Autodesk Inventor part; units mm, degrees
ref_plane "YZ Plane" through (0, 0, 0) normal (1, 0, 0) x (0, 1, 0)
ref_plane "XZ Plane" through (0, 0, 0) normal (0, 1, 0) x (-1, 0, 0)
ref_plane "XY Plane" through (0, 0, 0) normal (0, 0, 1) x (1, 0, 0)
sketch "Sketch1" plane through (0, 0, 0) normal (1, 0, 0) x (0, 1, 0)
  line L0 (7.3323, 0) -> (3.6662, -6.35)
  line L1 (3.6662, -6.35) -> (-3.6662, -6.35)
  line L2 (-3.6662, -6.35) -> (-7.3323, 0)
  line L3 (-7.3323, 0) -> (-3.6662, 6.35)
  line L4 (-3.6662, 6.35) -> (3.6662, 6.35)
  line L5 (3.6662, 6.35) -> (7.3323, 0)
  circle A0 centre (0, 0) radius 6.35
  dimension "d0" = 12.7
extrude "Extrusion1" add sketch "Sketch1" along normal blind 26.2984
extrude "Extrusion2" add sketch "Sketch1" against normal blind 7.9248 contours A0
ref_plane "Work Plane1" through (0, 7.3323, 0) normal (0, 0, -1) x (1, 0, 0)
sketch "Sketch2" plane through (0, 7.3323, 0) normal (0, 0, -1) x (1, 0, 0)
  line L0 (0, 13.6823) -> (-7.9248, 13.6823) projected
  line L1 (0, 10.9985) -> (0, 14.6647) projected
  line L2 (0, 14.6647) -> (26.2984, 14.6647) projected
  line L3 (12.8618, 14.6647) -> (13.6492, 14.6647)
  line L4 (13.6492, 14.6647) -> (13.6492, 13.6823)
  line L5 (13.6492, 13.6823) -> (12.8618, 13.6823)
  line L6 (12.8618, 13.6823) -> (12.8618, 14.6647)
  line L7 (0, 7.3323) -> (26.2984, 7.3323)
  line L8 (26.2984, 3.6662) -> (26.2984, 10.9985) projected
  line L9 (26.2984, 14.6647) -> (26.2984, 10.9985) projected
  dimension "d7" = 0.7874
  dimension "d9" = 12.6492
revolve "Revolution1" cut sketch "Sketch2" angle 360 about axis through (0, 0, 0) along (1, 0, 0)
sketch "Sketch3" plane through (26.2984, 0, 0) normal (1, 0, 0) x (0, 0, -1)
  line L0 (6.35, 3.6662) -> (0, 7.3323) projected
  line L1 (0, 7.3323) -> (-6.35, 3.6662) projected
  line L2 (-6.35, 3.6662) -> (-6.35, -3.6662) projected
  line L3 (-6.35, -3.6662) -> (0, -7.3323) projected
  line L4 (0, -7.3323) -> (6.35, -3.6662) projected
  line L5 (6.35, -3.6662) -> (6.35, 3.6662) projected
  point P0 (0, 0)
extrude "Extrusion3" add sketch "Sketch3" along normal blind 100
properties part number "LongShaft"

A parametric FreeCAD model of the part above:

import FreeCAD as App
import Part
import Sketcher
Q = App.Units.Quantity


def add_polygon(sketch, points):
    """Adds a closed chain of lines whose ends are joined by coincident constraints."""
    first, n = sketch.GeometryCount, len(points)
    for a, b in zip(points, points[1:] + points[:1]):
        sketch.addGeometry(Part.LineSegment(App.Vector(*a, 0), App.Vector(*b, 0)), False)
    for i in range(n):
        sketch.addConstraint(Sketcher.Constraint("Coincident", first + i, 2, first + (i + 1) % n, 1))

doc = App.newDocument("Part")
body = doc.addObject("PartDesign::Body", "Body")

# Sketch on YZ plane
sketch1 = body.newObject("Sketcher::SketchObject", "Sketch")
sketch1.AttachmentSupport = (doc.getObject("YZ_Plane"), [""])
sketch1.MapMode = "FlatFace"
add_polygon(sketch1, [(7, 0), (4, 6), (-4, 6), (-7, 0), (-4, -6), (4, -6)])  # lines 0-5
sketch1.addConstraint([
    Sketcher.Constraint("Horizontal", 1),
    Sketcher.Constraint("Horizontal", 4),
    Sketcher.Constraint("Symmetric", 0, 2, 3, 2, -1, 1),
    Sketcher.Constraint("Symmetric", 2, 2, 5, 2, -1, 1),
    Sketcher.Constraint("PointOnObject", 2, 2, -1),
    Sketcher.Constraint("Parallel", 2, 5),
    Sketcher.Constraint("Vertical", 1, 2, 3, 2),
    Sketcher.Constraint("DistanceY", 3, 2, 1, 2, Q("0.5 in")),
    Sketcher.Constraint("Angle", 0, Q("119.9995 deg")),
    Sketcher.Constraint("DistanceX", 2, 2, 0, 2, Q("0.433 in")),
])
pad1 = body.newObject("PartDesign::Pad", "Pad")
pad1.Profile = sketch1
pad1.Length = 26.2984

# Sketch on YZ plane
sketch2 = body.newObject("Sketcher::SketchObject", "Sketch001")
sketch2.AttachmentSupport = (doc.getObject("YZ_Plane"), [""])
sketch2.MapMode = "FlatFace"
sketch2.addGeometry(Part.Circle(App.Vector(0, 0, 0), App.Vector(0, 0, 1), 6), False)
sketch2.addConstraint([
    Sketcher.Constraint("Coincident", 0, 3, -1, 1),
    Sketcher.Constraint("Diameter", 0, Q("0.5 in")),
])
pad2 = body.newObject("PartDesign::Pad", "Pad001")
pad2.Profile = sketch2
pad2.Length = Q("0.312 in")
pad2.Reversed = True

# Sketch on XY plane
sketch3 = body.newObject("Sketcher::SketchObject", "Sketch002")
sketch3.AttachmentSupport = (doc.getObject("XY_Plane"), [""])
sketch3.MapMode = "FlatFace"
add_polygon(sketch3, [(13.6, -7.3), (12.9, -7.3), (12.9, -6.3), (13.6, -6.3)])  # lines 0-3
sketch3.addConstraint([
    Sketcher.Constraint("Horizontal", 0),
    Sketcher.Constraint("Vertical", 1),
    Sketcher.Constraint("Horizontal", 2),
    Sketcher.Constraint("Vertical", 3),
    Sketcher.Constraint("DistanceX", 0, 2, 0, 1, Q("0.031 in")),
    Sketcher.Constraint("DistanceY", 1, 2, -1, 1, Q("0.25 in")),
    Sketcher.Constraint("DistanceY", 1, 1, 1, 2, Q("0.9824 mm")),
    Sketcher.Constraint("DistanceX", -1, 1, 0, 2, Q("12.8618 mm")),
])
groove = body.newObject("PartDesign::Groove", "Groove")
groove.Profile = sketch3
groove.ReferenceAxis = (sketch3, ["H_Axis"])
groove.Angle = 360

# Sketch on YZ plane
sketch4 = body.newObject("Sketcher::SketchObject", "Sketch003")
sketch4.AttachmentSupport = (doc.getObject("YZ_Plane"), [""])
sketch4.MapMode = "FlatFace"
sketch4.AttachmentOffset = App.Placement(App.Vector(0, 0, 26.2984), App.Rotation())
add_polygon(sketch4, [(-4, -6), (4, -6), (7, 0), (4, 6), (-4, 6), (-7, 0)])  # lines 0-5
sketch4.addConstraint([
    Sketcher.Constraint("Horizontal", 0),
    Sketcher.Constraint("Horizontal", 3),
    Sketcher.Constraint("Symmetric", 0, 2, 3, 2, -1, 1),
    Sketcher.Constraint("Symmetric", 1, 2, 4, 2, -1, 1),
    Sketcher.Constraint("PointOnObject", 1, 2, -1),
    Sketcher.Constraint("Parallel", 2, 5),
    Sketcher.Constraint("Vertical", 0, 2, 2, 2),
    Sketcher.Constraint("Angle", 1, Q("60.0005 deg")),
    Sketcher.Constraint("DistanceY", 0, 2, 2, 2, Q("0.5 in")),
    Sketcher.Constraint("DistanceX", 3, 2, 1, 2, Q("0.433 in")),
])
pad3 = body.newObject("PartDesign::Pad", "Pad002")
pad3.Profile = sketch4
pad3.Length = Q("3.9370079 in")

doc.recompute()
